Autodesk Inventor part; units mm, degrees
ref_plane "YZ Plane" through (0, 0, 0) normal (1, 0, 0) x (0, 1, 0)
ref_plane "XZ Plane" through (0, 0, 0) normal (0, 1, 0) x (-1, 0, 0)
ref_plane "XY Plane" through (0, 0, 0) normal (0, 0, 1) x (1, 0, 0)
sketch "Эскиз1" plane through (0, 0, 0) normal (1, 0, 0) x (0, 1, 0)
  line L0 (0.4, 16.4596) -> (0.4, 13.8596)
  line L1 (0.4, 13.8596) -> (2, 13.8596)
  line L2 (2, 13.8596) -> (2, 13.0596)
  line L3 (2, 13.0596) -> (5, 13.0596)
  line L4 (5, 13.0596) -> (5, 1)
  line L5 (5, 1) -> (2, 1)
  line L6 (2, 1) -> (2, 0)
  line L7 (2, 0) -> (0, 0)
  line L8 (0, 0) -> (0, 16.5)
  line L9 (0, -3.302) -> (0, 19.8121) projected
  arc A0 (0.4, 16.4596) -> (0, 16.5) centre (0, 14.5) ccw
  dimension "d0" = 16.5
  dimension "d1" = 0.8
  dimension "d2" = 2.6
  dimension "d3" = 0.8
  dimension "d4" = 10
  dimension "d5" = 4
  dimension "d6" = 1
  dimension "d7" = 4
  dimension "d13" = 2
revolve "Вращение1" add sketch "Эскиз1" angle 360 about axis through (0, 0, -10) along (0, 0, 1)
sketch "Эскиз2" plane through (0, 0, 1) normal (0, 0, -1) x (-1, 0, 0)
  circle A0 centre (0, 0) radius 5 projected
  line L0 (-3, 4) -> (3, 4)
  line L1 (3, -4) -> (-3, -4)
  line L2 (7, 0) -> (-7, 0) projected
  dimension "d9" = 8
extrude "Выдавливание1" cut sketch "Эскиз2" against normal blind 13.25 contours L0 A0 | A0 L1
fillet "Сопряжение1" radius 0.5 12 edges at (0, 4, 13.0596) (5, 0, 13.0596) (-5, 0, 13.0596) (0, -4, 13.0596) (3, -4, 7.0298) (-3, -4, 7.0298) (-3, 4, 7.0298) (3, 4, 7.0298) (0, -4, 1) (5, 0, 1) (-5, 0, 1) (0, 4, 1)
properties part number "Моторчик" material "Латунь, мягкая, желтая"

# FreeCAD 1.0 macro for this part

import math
import FreeCAD as App
import Part
import Sketcher

V = App.Vector


def edges_at(feature, points):
    """Names of the edges that pass closest to the given points."""
    edges = feature.Shape.Edges
    near = lambda p: min(range(len(edges)), key=lambda i: edges[i].distToShape(Part.Vertex(*p))[0])
    return sorted({f"Edge{near(p) + 1}" for p in points})

doc = App.newDocument("Part")
body = doc.addObject("PartDesign::Body", "Body")

# Sketch on YZ plane
sketch1 = body.newObject("Sketcher::SketchObject", "Sketch")
sketch1.AttachmentSupport = (doc.getObject("YZ_Plane"), [""])
sketch1.MapMode = "FlatFace"
sketch1.addGeometry([
    Part.LineSegment(V(0.4, 13.8596, 0), V(0.4, 16.4596, 0)),  # 0
    Part.ArcOfCircle(Part.Circle(V(0, 14.5, 0), V(0, 0, 1), 2.000008), math.radians(78.463088), math.radians(90)),  # 1
    Part.LineSegment(V(0, 16.5, 0), V(0, 0, 0)),  # 2
    Part.LineSegment(V(0, 0, 0), V(2, 0, 0)),  # 3
    Part.LineSegment(V(2, 0, 0), V(2, 1, 0)),  # 4
    Part.LineSegment(V(2, 1, 0), V(5, 1, 0)),  # 5
    Part.LineSegment(V(5, 1, 0), V(5, 13.0596, 0)),  # 6
    Part.LineSegment(V(5, 13.0596, 0), V(2, 13.0596, 0)),  # 7
    Part.LineSegment(V(2, 13.0596, 0), V(2, 13.8596, 0)),  # 8
    Part.LineSegment(V(2, 13.8596, 0), V(0.4, 13.8596, 0)),  # 9
], False)
sketch1.addConstraint([
    Sketcher.Constraint("Coincident", 0, 2, 1, 1),
    Sketcher.Constraint("Coincident", 1, 2, 2, 1),
    Sketcher.Constraint("Coincident", 2, 2, 3, 1),
    Sketcher.Constraint("Coincident", 3, 2, 4, 1),
    Sketcher.Constraint("Coincident", 4, 2, 5, 1),
    Sketcher.Constraint("Coincident", 5, 2, 6, 1),
    Sketcher.Constraint("Coincident", 6, 2, 7, 1),
    Sketcher.Constraint("Coincident", 7, 2, 8, 1),
    Sketcher.Constraint("Coincident", 8, 2, 9, 1),
    Sketcher.Constraint("Coincident", 9, 2, 0, 1),
    Sketcher.Constraint("Vertical", 0),
    Sketcher.Constraint("Vertical", 2),
    Sketcher.Constraint("Horizontal", 3),
    Sketcher.Constraint("Vertical", 4),
    Sketcher.Constraint("Horizontal", 5),
    Sketcher.Constraint("Vertical", 6),
    Sketcher.Constraint("Horizontal", 7),
    Sketcher.Constraint("Vertical", 8),
    Sketcher.Constraint("Horizontal", 9),
    Sketcher.Constraint("Coincident", 2, 2, -1, 1),
    Sketcher.Constraint("PointOnObject", 1, 3, -2),
    Sketcher.Constraint("Vertical", 4, 2, 7, 2),
    Sketcher.Constraint("Radius", 1, 2.0),
    Sketcher.Constraint("DistanceX", 3, 1, 3, 2, 2.0),
    Sketcher.Constraint("DistanceY", 4, 1, 4, 2, 1.0),
    Sketcher.Constraint("DistanceY", 0, 1, 0, 2, 2.6),
    Sketcher.Constraint("DistanceY", 2, 2, 2, 1, 16.5),
    Sketcher.Constraint("DistanceY", 8, 1, 8, 2, 0.8),
    Sketcher.Constraint("DistanceX", 5, 1, 5, 2, 3.0),
    Sketcher.Constraint("DistanceX", 9, 2, 9, 1, 1.6),
])
revolution = body.newObject("PartDesign::Revolution", "Revolution")
revolution.Profile = sketch1
revolution.ReferenceAxis = (sketch1, ["V_Axis"])
revolution.Angle = 360

# Sketch on XY plane
sketch2 = body.newObject("Sketcher::SketchObject", "Sketch001")
sketch2.AttachmentSupport = (doc.getObject("XY_Plane"), [""])
sketch2.MapMode = "FlatFace"
sketch2.AttachmentOffset = App.Placement(V(0, 0, 1), App.Rotation())
sketch2.addGeometry([
    Part.LineSegment(V(3, 4, 0), V(-3, 4, 0)),
    Part.ArcOfCircle(Part.Circle(V(0, 0, 0), V(0, 0, 1), 5), math.radians(53.130102), math.radians(126.869898)),
    Part.ArcOfCircle(Part.Circle(V(0, 0, 0), V(0, 0, 1), 5), math.radians(-126.869898), math.radians(-53.130102)),
    Part.LineSegment(V(-3, -4, 0), V(3, -4, 0)),
], False)
sketch2.addConstraint([
    Sketcher.Constraint("Coincident", 0, 1, 1, 1),
    Sketcher.Constraint("Coincident", 1, 2, 0, 2),
    Sketcher.Constraint("Coincident", 2, 1, 3, 1),
    Sketcher.Constraint("Coincident", 3, 2, 2, 2),
    Sketcher.Constraint("Horizontal", 0),
    Sketcher.Constraint("Horizontal", 3),
    Sketcher.Constraint("Coincident", 1, 3, -1, 1),
    Sketcher.Constraint("Coincident", 2, 3, -1, 1),
    Sketcher.Constraint("Equal", 1, 2),
    Sketcher.Constraint("Vertical", 1, 2, 2, 1),
    Sketcher.Constraint("Radius", 1, 5.0),
    Sketcher.Constraint("DistanceY", 2, 1, 1, 2, 8.0),
])
pocket1 = body.newObject("PartDesign::Pocket", "Pocket")
pocket1.Profile = sketch2
pocket1.Length = 13.25
pocket1.Reversed = True
doc.recompute()

fillet = body.newObject("PartDesign::Fillet", "Fillet")
fillet.Base = (pocket1, edges_at(pocket1, [
    (0, 4, 13.06),
    (5, 0, 13.06),
    (-5, 0, 13.06),
    (0, -4, 13.06),
    (3, -4, 7.03),
    (-3, -4, 7.03),
    (-3, 4, 7.03),
    (3, 4, 7.03),
    (0, -4, 1),
    (5, 0, 1),
    (-5, 0, 1),
    (0, 4, 1),
]))
fillet.Radius = 0.5

doc.recompute()
